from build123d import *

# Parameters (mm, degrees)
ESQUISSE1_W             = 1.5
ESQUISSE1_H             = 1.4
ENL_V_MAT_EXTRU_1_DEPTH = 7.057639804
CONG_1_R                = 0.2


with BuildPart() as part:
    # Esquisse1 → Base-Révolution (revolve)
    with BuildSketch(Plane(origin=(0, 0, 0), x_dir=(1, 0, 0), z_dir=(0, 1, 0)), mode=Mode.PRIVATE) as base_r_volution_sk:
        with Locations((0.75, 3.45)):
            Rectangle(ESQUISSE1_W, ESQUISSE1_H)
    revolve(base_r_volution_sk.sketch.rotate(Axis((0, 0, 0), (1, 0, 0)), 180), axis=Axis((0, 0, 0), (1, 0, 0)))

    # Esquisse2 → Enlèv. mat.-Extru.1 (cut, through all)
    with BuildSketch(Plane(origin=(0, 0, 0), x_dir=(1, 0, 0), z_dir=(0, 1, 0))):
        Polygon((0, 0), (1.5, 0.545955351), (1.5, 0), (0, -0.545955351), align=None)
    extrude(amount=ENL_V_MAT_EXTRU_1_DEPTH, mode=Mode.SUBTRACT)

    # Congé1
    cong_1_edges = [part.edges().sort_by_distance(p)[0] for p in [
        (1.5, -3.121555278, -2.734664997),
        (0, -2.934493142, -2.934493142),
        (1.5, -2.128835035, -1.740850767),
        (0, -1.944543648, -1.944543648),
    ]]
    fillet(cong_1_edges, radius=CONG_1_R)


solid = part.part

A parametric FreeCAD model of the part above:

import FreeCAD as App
import Part
import Sketcher
from FreeCAD import Vector
Q = App.Units.Quantity


def edges_at(feature, points):
    """Names of the edges that pass closest to the given points."""
    edges = feature.Shape.Edges
    near = lambda p: min(range(len(edges)), key=lambda i: edges[i].distToShape(Part.Vertex(*p))[0])
    return sorted({f"Edge{near(p) + 1}" for p in points})


def add_polygon(sketch, points):
    """Adds a closed chain of lines whose ends are joined by coincident constraints."""
    first, n = sketch.GeometryCount, len(points)
    for a, b in zip(points, points[1:] + points[:1]):
        sketch.addGeometry(Part.LineSegment(App.Vector(*a, 0), App.Vector(*b, 0)), False)
    for i in range(n):
        sketch.addConstraint(Sketcher.Constraint("Coincident", first + i, 2, first + (i + 1) % n, 1))

doc = App.newDocument("Part")
body = doc.addObject("PartDesign::Body", "Body")

# Sketch on XZ plane
sketch1 = body.newObject("Sketcher::SketchObject", "Sketch")
sketch1.AttachmentSupport = (doc.getObject("XZ_Plane"), [""])
sketch1.MapMode = "FlatFace"
add_polygon(sketch1, [(0, -4.15), (0, -2.75), (1.5, -2.75), (1.5, -4.15)])  # lines 0-3
sketch1.addConstraint(Sketcher.Constraint("Vertical", 0))
sketch1.addConstraint(Sketcher.Constraint("Horizontal", 1))
sketch1.addConstraint(Sketcher.Constraint("Vertical", 2))
sketch1.addConstraint(Sketcher.Constraint("Horizontal", 3))
sketch1.addConstraint(Sketcher.Constraint("PointOnObject", 0, 2, -2))
sketch1.addConstraint(Sketcher.Constraint("DistanceX", 1, 1, 1, 2, 1.5))
sketch1.addConstraint(Sketcher.Constraint("DistanceY", 0, 1, 0, 2, 1.4))
sketch1.addConstraint(Sketcher.Constraint("DistanceY", 0, 2, -1, 1, 2.75))
revolution = body.newObject("PartDesign::Revolution", "Revolution")
revolution.Profile = sketch1
revolution.ReferenceAxis = (sketch1, ["H_Axis"])
revolution.Angle = 360

# Sketch on XZ plane
sketch2 = body.newObject("Sketcher::SketchObject", "Sketch001")
sketch2.AttachmentSupport = (doc.getObject("XZ_Plane"), [""])
sketch2.MapMode = "FlatFace"
add_polygon(sketch2, [(1.5, -0.545955), (0, 0), (0, 0.545955), (1.5, 0)])  # lines 0-3
sketch2.addConstraint(Sketcher.Constraint("Vertical", 1))
sketch2.addConstraint(Sketcher.Constraint("Vertical", 3))
sketch2.addConstraint(Sketcher.Constraint("Coincident", 0, 2, -1, 1))
sketch2.addConstraint(Sketcher.Constraint("PointOnObject", 2, 2, -1))
sketch2.addConstraint(Sketcher.Constraint("Parallel", 0, 2))
sketch2.addConstraint(Sketcher.Constraint("Angle", 0, Q("160 deg")))
sketch2.addConstraint(Sketcher.Constraint("DistanceX", -1, 1, 2, 2, 1.5))
pocket1 = body.newObject("PartDesign::Pocket", "Pocket")
pocket1.Profile = sketch2
pocket1.Type = "ThroughAll"
doc.recompute()

fillet = body.newObject("PartDesign::Fillet", "Fillet")
fillet.Base = (pocket1, edges_at(pocket1, [
    (1.5, -3.122, -2.735),
    (0, -2.934, -2.934),
    (1.5, -2.129, -1.741),
    (0, -1.945, -1.945),
]))
fillet.Radius = 0.2

doc.recompute()
